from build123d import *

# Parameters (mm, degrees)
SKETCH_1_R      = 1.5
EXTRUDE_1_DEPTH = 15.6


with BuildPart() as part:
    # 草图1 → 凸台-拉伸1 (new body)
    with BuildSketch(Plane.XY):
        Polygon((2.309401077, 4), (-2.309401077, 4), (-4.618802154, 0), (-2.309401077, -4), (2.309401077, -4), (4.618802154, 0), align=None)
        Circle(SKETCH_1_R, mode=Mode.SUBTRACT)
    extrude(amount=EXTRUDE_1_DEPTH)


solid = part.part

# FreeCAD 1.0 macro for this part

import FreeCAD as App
import Part
import Sketcher

V = App.Vector
Q = App.Units.Quantity


def add_polygon(sketch, points):
    """Adds a closed chain of lines whose ends are joined by coincident constraints."""
    first, n = sketch.GeometryCount, len(points)
    for a, b in zip(points, points[1:] + points[:1]):
        sketch.addGeometry(Part.LineSegment(App.Vector(*a, 0), App.Vector(*b, 0)), False)
    for i in range(n):
        sketch.addConstraint(Sketcher.Constraint("Coincident", first + i, 2, first + (i + 1) % n, 1))

doc = App.newDocument("Part")
params = doc.addObject("Spreadsheet::Sheet", "Params")
for row, (alias, value) in enumerate([
    ("sketch1_diameter", "3 mm"),
    ("pad1_length", "15.6 mm"),
], start=1):
    params.set(f"A{row}", alias)
    params.set(f"B{row}", "=" + value)
    params.setAlias(f"B{row}", alias)

body = doc.addObject("PartDesign::Body", "Body")

# Sketch on XY plane
sketch1 = body.newObject("Sketcher::SketchObject", "Sketch")
sketch1.AttachmentSupport = (doc.getObject("XY_Plane"), [""])
sketch1.MapMode = "FlatFace"
add_polygon(sketch1, [(2.309401, 4), (-2.309401, 4), (-4.618802, 0), (-2.309401, -4), (2.309401, -4), (4.618802, 0)])  # lines 0-5
sketch1.addGeometry(Part.Circle(V(0, 0, 0), V(0, 0, 1), 1.5), False)  # 6
sketch1.addConstraint(Sketcher.Constraint("Horizontal", 0))
sketch1.addConstraint(Sketcher.Constraint("Horizontal", 3))
sketch1.addConstraint(Sketcher.Constraint("Coincident", 6, 3, -1, 1))
sketch1.addConstraint(Sketcher.Constraint("Symmetric", 0, 2, 3, 2, -1, 1))
sketch1.addConstraint(Sketcher.Constraint("Symmetric", 1, 2, 4, 2, -1, 1))
sketch1.addConstraint(Sketcher.Constraint("PointOnObject", 1, 2, -1))
sketch1.addConstraint(Sketcher.Constraint("Parallel", 2, 5))
sketch1.addConstraint(Sketcher.Constraint("Vertical", 0, 2, 2, 2))
sketch1.addConstraint(Sketcher.Constraint("Diameter", 6, 3.0))
sketch1.addConstraint(Sketcher.Constraint("Angle", 1, Q("-120 deg")))
sketch1.addConstraint(Sketcher.Constraint("DistanceY", -1, 1, 0, 2, 4.0))
sketch1.addConstraint(Sketcher.Constraint("DistanceX", 0, 2, -1, 1, 2.309401))
sketch1.setExpression("Constraints[14]", "Params.sketch1_diameter")
pad1 = body.newObject("PartDesign::Pad", "Pad")
pad1.Profile = sketch1
pad1.setExpression("Length", "Params.pad1_length")

doc.recompute()
